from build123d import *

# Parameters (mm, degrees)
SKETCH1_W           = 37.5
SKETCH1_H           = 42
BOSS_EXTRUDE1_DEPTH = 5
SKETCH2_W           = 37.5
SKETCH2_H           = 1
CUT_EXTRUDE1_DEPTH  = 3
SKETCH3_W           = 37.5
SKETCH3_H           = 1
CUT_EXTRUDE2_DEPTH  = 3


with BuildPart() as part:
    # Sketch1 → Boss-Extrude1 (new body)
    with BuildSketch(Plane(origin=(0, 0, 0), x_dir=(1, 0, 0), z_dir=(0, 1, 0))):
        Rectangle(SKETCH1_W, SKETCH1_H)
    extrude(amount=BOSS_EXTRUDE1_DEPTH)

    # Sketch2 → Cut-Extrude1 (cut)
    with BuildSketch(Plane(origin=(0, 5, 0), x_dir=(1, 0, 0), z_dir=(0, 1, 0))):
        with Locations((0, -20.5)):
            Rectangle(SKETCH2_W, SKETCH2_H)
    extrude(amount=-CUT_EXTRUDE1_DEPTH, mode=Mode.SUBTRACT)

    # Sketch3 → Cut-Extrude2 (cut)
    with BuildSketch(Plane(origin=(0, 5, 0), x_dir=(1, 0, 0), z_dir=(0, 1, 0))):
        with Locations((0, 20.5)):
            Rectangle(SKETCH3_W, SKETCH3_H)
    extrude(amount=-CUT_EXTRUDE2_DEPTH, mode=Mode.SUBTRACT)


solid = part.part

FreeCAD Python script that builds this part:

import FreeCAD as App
import Part
import Sketcher

V = App.Vector
Q = App.Units.Quantity

doc = App.newDocument("Part")
body = doc.addObject("PartDesign::Body", "Body")

# Sketch on XZ plane
sketch1 = body.newObject("Sketcher::SketchObject", "Sketch")
sketch1.AttachmentSupport = (doc.getObject("XZ_Plane"), [""])
sketch1.MapMode = "FlatFace"
sketch1.addGeometry(Part.LineSegment(V(-19, -21, 0), V(-19, 21, 0)), False)
sketch1.addGeometry(Part.LineSegment(V(-19, 21, 0), V(19, 21, 0)), False)
sketch1.addGeometry(Part.LineSegment(V(19, 21, 0), V(19, -21, 0)), False)
sketch1.addGeometry(Part.LineSegment(V(19, -21, 0), V(-19, -21, 0)), False)
sketch1.addConstraint(Sketcher.Constraint("Coincident", 0, 2, 1, 1))
sketch1.addConstraint(Sketcher.Constraint("Coincident", 1, 2, 2, 1))
sketch1.addConstraint(Sketcher.Constraint("Coincident", 2, 2, 3, 1))
sketch1.addConstraint(Sketcher.Constraint("Coincident", 3, 2, 0, 1))
sketch1.addConstraint(Sketcher.Constraint("Vertical", 0))
sketch1.addConstraint(Sketcher.Constraint("Horizontal", 1))
sketch1.addConstraint(Sketcher.Constraint("Vertical", 2))
sketch1.addConstraint(Sketcher.Constraint("Horizontal", 3))
sketch1.addConstraint(Sketcher.Constraint("Symmetric", 0, 2, 2, 2, -1, 1))
sketch1.addConstraint(Sketcher.Constraint("DistanceY", 0, 1, 0, 2, Q("42 mm")))
sketch1.addConstraint(Sketcher.Constraint("DistanceX", 1, 1, 1, 2, Q("37.5 mm")))
pad1 = body.newObject("PartDesign::Pad", "Pad")
pad1.Profile = sketch1
pad1.Length = 5
pad1.Reversed = True

# Sketch on XZ plane
sketch2 = body.newObject("Sketcher::SketchObject", "Sketch001")
sketch2.AttachmentSupport = (doc.getObject("XZ_Plane"), [""])
sketch2.MapMode = "FlatFace"
sketch2.AttachmentOffset = App.Placement(V(0, 0, -5), App.Rotation())
sketch2.addGeometry(Part.LineSegment(V(-18.8, 20, 0), V(-18.8, 21, 0)), False)
sketch2.addGeometry(Part.LineSegment(V(-18.8, 21, 0), V(18.8, 21, 0)), False)
sketch2.addGeometry(Part.LineSegment(V(18.8, 21, 0), V(18.8, 20, 0)), False)
sketch2.addGeometry(Part.LineSegment(V(18.8, 20, 0), V(-18.8, 20, 0)), False)
sketch2.addConstraint(Sketcher.Constraint("Coincident", 0, 2, 1, 1))
sketch2.addConstraint(Sketcher.Constraint("Coincident", 1, 2, 2, 1))
sketch2.addConstraint(Sketcher.Constraint("Coincident", 2, 2, 3, 1))
sketch2.addConstraint(Sketcher.Constraint("Coincident", 3, 2, 0, 1))
sketch2.addConstraint(Sketcher.Constraint("Vertical", 0))
sketch2.addConstraint(Sketcher.Constraint("Horizontal", 1))
sketch2.addConstraint(Sketcher.Constraint("Vertical", 2))
sketch2.addConstraint(Sketcher.Constraint("Horizontal", 3))
sketch2.addConstraint(Sketcher.Constraint("DistanceY", 0, 1, 0, 2, Q("1 mm")))
sketch2.addConstraint(Sketcher.Constraint("DistanceX", 1, 1, 1, 2, Q("37.5 mm")))
sketch2.addConstraint(Sketcher.Constraint("DistanceY", -1, 1, 0, 2, Q("21 mm")))
sketch2.addConstraint(Sketcher.Constraint("DistanceX", 0, 2, -1, 1, Q("18.75 mm")))
pocket1 = body.newObject("PartDesign::Pocket", "Pocket")
pocket1.Profile = sketch2
pocket1.Length = 3
pocket1.Reversed = True

# Sketch on XZ plane
sketch3 = body.newObject("Sketcher::SketchObject", "Sketch002")
sketch3.AttachmentSupport = (doc.getObject("XZ_Plane"), [""])
sketch3.MapMode = "FlatFace"
sketch3.AttachmentOffset = App.Placement(V(0, 0, -5), App.Rotation())
sketch3.addGeometry(Part.LineSegment(V(-18.8, -21, 0), V(-18.8, -20, 0)), False)
sketch3.addGeometry(Part.LineSegment(V(-18.8, -20, 0), V(18.8, -20, 0)), False)
sketch3.addGeometry(Part.LineSegment(V(18.8, -20, 0), V(18.8, -21, 0)), False)
sketch3.addGeometry(Part.LineSegment(V(18.8, -21, 0), V(-18.8, -21, 0)), False)
sketch3.addConstraint(Sketcher.Constraint("Coincident", 0, 2, 1, 1))
sketch3.addConstraint(Sketcher.Constraint("Coincident", 1, 2, 2, 1))
sketch3.addConstraint(Sketcher.Constraint("Coincident", 2, 2, 3, 1))
sketch3.addConstraint(Sketcher.Constraint("Coincident", 3, 2, 0, 1))
sketch3.addConstraint(Sketcher.Constraint("Vertical", 0))
sketch3.addConstraint(Sketcher.Constraint("Horizontal", 1))
sketch3.addConstraint(Sketcher.Constraint("Vertical", 2))
sketch3.addConstraint(Sketcher.Constraint("Horizontal", 3))
sketch3.addConstraint(Sketcher.Constraint("DistanceY", 0, 1, 0, 2, Q("1 mm")))
sketch3.addConstraint(Sketcher.Constraint("DistanceX", 1, 1, 1, 2, Q("37.5 mm")))
sketch3.addConstraint(Sketcher.Constraint("DistanceY", 0, 2, -1, 1, Q("20 mm")))
sketch3.addConstraint(Sketcher.Constraint("DistanceX", 0, 2, -1, 1, Q("18.75 mm")))
pocket2 = body.newObject("PartDesign::Pocket", "Pocket001")
pocket2.Profile = sketch3
pocket2.Length = 3
pocket2.Reversed = True

doc.recompute()
